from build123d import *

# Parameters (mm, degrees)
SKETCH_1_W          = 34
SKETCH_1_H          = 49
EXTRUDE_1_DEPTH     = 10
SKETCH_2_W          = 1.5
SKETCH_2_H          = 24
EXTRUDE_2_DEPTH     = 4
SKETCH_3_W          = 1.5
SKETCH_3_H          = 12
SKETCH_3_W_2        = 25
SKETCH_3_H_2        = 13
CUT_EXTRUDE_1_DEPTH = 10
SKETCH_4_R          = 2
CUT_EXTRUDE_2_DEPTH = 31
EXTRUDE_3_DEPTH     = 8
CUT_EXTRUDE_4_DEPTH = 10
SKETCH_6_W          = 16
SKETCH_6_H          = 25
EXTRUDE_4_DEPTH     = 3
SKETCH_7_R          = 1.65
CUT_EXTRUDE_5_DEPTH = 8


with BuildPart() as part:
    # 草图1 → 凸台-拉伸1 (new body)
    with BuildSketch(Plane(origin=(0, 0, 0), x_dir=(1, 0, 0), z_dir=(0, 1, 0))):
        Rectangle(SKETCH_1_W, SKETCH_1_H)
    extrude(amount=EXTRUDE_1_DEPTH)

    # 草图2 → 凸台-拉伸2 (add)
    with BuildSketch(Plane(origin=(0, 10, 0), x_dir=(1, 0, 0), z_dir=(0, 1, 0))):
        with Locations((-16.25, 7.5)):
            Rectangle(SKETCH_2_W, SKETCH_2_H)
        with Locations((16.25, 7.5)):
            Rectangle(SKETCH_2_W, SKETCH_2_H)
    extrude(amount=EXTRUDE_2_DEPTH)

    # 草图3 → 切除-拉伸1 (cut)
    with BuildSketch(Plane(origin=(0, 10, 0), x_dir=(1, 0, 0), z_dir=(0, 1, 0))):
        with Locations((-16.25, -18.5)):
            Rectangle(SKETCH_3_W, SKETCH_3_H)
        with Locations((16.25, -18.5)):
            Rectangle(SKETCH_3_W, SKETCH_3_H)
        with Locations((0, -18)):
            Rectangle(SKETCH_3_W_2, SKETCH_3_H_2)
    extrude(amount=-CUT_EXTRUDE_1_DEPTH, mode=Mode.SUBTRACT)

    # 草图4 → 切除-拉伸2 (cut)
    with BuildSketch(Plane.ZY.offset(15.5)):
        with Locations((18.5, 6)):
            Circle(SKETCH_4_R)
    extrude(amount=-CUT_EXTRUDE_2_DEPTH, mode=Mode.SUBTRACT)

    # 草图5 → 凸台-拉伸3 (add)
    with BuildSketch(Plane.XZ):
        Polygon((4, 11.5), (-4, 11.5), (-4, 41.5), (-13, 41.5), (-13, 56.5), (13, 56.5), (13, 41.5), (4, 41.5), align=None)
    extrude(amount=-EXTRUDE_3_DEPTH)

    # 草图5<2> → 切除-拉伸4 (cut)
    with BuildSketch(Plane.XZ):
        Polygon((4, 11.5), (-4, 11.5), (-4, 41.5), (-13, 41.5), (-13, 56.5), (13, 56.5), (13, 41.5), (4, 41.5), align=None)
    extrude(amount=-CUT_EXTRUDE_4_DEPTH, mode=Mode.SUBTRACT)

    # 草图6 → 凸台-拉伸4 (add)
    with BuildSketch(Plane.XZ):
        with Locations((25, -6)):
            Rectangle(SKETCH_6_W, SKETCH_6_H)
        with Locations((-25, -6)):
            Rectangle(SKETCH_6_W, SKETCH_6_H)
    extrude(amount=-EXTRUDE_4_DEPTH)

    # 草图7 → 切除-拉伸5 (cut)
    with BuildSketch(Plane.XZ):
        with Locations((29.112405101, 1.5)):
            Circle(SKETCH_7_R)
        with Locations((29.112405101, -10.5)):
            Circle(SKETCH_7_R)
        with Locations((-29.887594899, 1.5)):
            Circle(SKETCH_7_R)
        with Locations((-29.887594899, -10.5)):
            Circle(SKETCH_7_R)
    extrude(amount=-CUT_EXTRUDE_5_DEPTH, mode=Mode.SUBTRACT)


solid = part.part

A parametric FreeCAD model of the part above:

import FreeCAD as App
import Part
import Sketcher

V = App.Vector

doc = App.newDocument("Part")
params = doc.addObject("Spreadsheet::Sheet", "Params")
for row, (alias, value) in enumerate([
    ("sketch1_width", "34 mm"),
    ("sketch1_height", "49 mm"),
    ("pad1_length", "10 mm"),
    ("sketch2_height", "24 mm"),
    ("sketch2_width", "1.5 mm"),
    ("pad2_length", "4 mm"),
    ("sketch3_width", "25 mm"),
    ("sketch3_height", "12 mm"),
    ("sketch3_height2", "13 mm"),
    ("sketch3_width2", "1.5 mm"),
    ("pocket1_length", "10 mm"),
    ("sketch4_diameter", "4 mm"),
    ("pocket2_length", "31 mm"),
    ("sketch5_width", "8 mm"),
    ("sketch5_width2", "9 mm"),
    ("sketch5_height", "30 mm"),
    ("sketch5_height2", "15 mm"),
    ("pad3_length", "8 mm"),
    ("sketch6_width", "8 mm"),
    ("sketch6_width2", "9 mm"),
    ("sketch6_height", "30 mm"),
    ("sketch6_height2", "15 mm"),
    ("pocket3_length", "10 mm"),
    ("sketch7_width", "16 mm"),
    ("sketch7_height", "25 mm"),
    ("pad4_length", "3 mm"),
    ("sketch8_diameter", "3.3 mm"),
    ("pocket4_length", "8 mm"),
], start=1):
    params.set(f"A{row}", alias)
    params.set(f"B{row}", "=" + value)
    params.setAlias(f"B{row}", alias)

body = doc.addObject("PartDesign::Body", "Body")

sketch1 = doc.addObject("Sketcher::SketchObject", "Sketch")
body.addObject(sketch1)
sketch1.AttachmentSupport = (doc.XZ_Plane, [""])
sketch1.MapMode = "FlatFace"
sketch1.addGeometry(Part.LineSegment(V(-17, -24, 0), V(-17, 24, 0)), False)
sketch1.addGeometry(Part.LineSegment(V(-17, 24, 0), V(17, 24, 0)), False)
sketch1.addGeometry(Part.LineSegment(V(17, 24, 0), V(17, -24, 0)), False)
sketch1.addGeometry(Part.LineSegment(V(17, -24, 0), V(-17, -24, 0)), False)
sketch1.addConstraint(Sketcher.Constraint("Coincident", 0, 2, 1, 1))
sketch1.addConstraint(Sketcher.Constraint("Coincident", 1, 2, 2, 1))
sketch1.addConstraint(Sketcher.Constraint("Coincident", 2, 2, 3, 1))
sketch1.addConstraint(Sketcher.Constraint("Coincident", 3, 2, 0, 1))
sketch1.addConstraint(Sketcher.Constraint("Vertical", 0))
sketch1.addConstraint(Sketcher.Constraint("Horizontal", 1))
sketch1.addConstraint(Sketcher.Constraint("Vertical", 2))
sketch1.addConstraint(Sketcher.Constraint("Horizontal", 3))
sketch1.addConstraint(Sketcher.Constraint("Symmetric", 0, 2, 2, 2, -1, 1))
sketch1.addConstraint(Sketcher.Constraint("DistanceX", 1, 1, 1, 2, 34.0))
sketch1.addConstraint(Sketcher.Constraint("DistanceY", 0, 1, 0, 2, 49.0))
sketch1.setExpression("Constraints[9]", "Params.sketch1_width")
sketch1.setExpression("Constraints[10]", "Params.sketch1_height")
pad1 = doc.addObject("PartDesign::Pad", "Pad")
body.addObject(pad1)
pad1.Profile = sketch1
pad1.setExpression("Length", "Params.pad1_length")
pad1.Reversed = True

sketch2 = doc.addObject("Sketcher::SketchObject", "Sketch001")
body.addObject(sketch2)
sketch2.AttachmentSupport = (doc.XZ_Plane, [""])
sketch2.MapMode = "FlatFace"
sketch2.AttachmentOffset = App.Placement(V(0, 0, -10), App.Rotation())
sketch2.addGeometry(Part.LineSegment(V(-17, -19.5, 0), V(-17, 4.5, 0)), False)
sketch2.addGeometry(Part.LineSegment(V(-17, 4.5, 0), V(-15.5, 4.5, 0)), False)
sketch2.addGeometry(Part.LineSegment(V(-15.5, 4.5, 0), V(-15.5, -19.5, 0)), False)
sketch2.addGeometry(Part.LineSegment(V(-15.5, -19.5, 0), V(-17, -19.5, 0)), False)
sketch2.addGeometry(Part.LineSegment(V(15.5, -19.5, 0), V(15.5, 4.5, 0)), False)
sketch2.addGeometry(Part.LineSegment(V(15.5, 4.5, 0), V(17, 4.5, 0)), False)
sketch2.addGeometry(Part.LineSegment(V(17, 4.5, 0), V(17, -19.5, 0)), False)
sketch2.addGeometry(Part.LineSegment(V(17, -19.5, 0), V(15.5, -19.5, 0)), False)
sketch2.addConstraint(Sketcher.Constraint("Coincident", 0, 2, 1, 1))
sketch2.addConstraint(Sketcher.Constraint("Coincident", 1, 2, 2, 1))
sketch2.addConstraint(Sketcher.Constraint("Coincident", 2, 2, 3, 1))
sketch2.addConstraint(Sketcher.Constraint("Coincident", 3, 2, 0, 1))
sketch2.addConstraint(Sketcher.Constraint("Coincident", 4, 2, 5, 1))
sketch2.addConstraint(Sketcher.Constraint("Coincident", 5, 2, 6, 1))
sketch2.addConstraint(Sketcher.Constraint("Coincident", 6, 2, 7, 1))
sketch2.addConstraint(Sketcher.Constraint("Coincident", 7, 2, 4, 1))
sketch2.addConstraint(Sketcher.Constraint("Vertical", 0))
sketch2.addConstraint(Sketcher.Constraint("Horizontal", 1))
sketch2.addConstraint(Sketcher.Constraint("Vertical", 2))
sketch2.addConstraint(Sketcher.Constraint("Horizontal", 3))
sketch2.addConstraint(Sketcher.Constraint("Vertical", 4))
sketch2.addConstraint(Sketcher.Constraint("Horizontal", 5))
sketch2.addConstraint(Sketcher.Constraint("Vertical", 6))
sketch2.addConstraint(Sketcher.Constraint("Horizontal", 7))
sketch2.addConstraint(Sketcher.Constraint("Symmetric", 1, 2, 4, 2, -2))
sketch2.addConstraint(Sketcher.Constraint("Symmetric", 3, 2, 6, 2, -2))
sketch2.addConstraint(Sketcher.Constraint("DistanceY", 0, 1, 0, 2, 24.0))
sketch2.addConstraint(Sketcher.Constraint("DistanceX", 1, 1, 1, 2, 1.5))
sketch2.addConstraint(Sketcher.Constraint("DistanceX", 0, 2, -1, 1, 17.0))
sketch2.addConstraint(Sketcher.Constraint("DistanceY", -1, 1, 0, 2, 4.5))
sketch2.setExpression("Constraints[18]", "Params.sketch2_height")
sketch2.setExpression("Constraints[19]", "Params.sketch2_width")
pad2 = doc.addObject("PartDesign::Pad", "Pad001")
body.addObject(pad2)
pad2.Profile = sketch2
pad2.setExpression("Length", "Params.pad2_length")
pad2.Reversed = True

sketch3 = doc.addObject("Sketcher::SketchObject", "Sketch002")
body.addObject(sketch3)
sketch3.AttachmentSupport = (doc.XZ_Plane, [""])
sketch3.MapMode = "FlatFace"
sketch3.AttachmentOffset = App.Placement(V(0, 0, -10), App.Rotation())
sketch3.addGeometry(Part.LineSegment(V(-17, 12.5, 0), V(-17, 24.5, 0)), False)
sketch3.addGeometry(Part.LineSegment(V(-17, 24.5, 0), V(-15.5, 24.5, 0)), False)
sketch3.addGeometry(Part.LineSegment(V(-15.5, 24.5, 0), V(-15.5, 12.5, 0)), False)
sketch3.addGeometry(Part.LineSegment(V(-15.5, 12.5, 0), V(-17, 12.5, 0)), False)
sketch3.addGeometry(Part.LineSegment(V(15.5, 12.5, 0), V(15.5, 24.5, 0)), False)
sketch3.addGeometry(Part.LineSegment(V(15.5, 24.5, 0), V(17, 24.5, 0)), False)
sketch3.addGeometry(Part.LineSegment(V(17, 24.5, 0), V(17, 12.5, 0)), False)
sketch3.addGeometry(Part.LineSegment(V(17, 12.5, 0), V(15.5, 12.5, 0)), False)
sketch3.addGeometry(Part.LineSegment(V(-12.5, 11.5, 0), V(-12.5, 24.5, 0)), False)
sketch3.addGeometry(Part.LineSegment(V(-12.5, 24.5, 0), V(12.5, 24.5, 0)), False)
sketch3.addGeometry(Part.LineSegment(V(12.5, 24.5, 0), V(12.5, 11.5, 0)), False)
sketch3.addGeometry(Part.LineSegment(V(12.5, 11.5, 0), V(-12.5, 11.5, 0)), False)
sketch3.addConstraint(Sketcher.Constraint("Coincident", 0, 2, 1, 1))
sketch3.addConstraint(Sketcher.Constraint("Coincident", 1, 2, 2, 1))
sketch3.addConstraint(Sketcher.Constraint("Coincident", 2, 2, 3, 1))
sketch3.addConstraint(Sketcher.Constraint("Coincident", 3, 2, 0, 1))
sketch3.addConstraint(Sketcher.Constraint("Coincident", 4, 2, 5, 1))
sketch3.addConstraint(Sketcher.Constraint("Coincident", 5, 2, 6, 1))
sketch3.addConstraint(Sketcher.Constraint("Coincident", 6, 2, 7, 1))
sketch3.addConstraint(Sketcher.Constraint("Coincident", 7, 2, 4, 1))
sketch3.addConstraint(Sketcher.Constraint("Coincident", 8, 2, 9, 1))
sketch3.addConstraint(Sketcher.Constraint("Coincident", 9, 2, 10, 1))
sketch3.addConstraint(Sketcher.Constraint("Coincident", 10, 2, 11, 1))
sketch3.addConstraint(Sketcher.Constraint("Coincident", 11, 2, 8, 1))
sketch3.addConstraint(Sketcher.Constraint("Vertical", 0))
sketch3.addConstraint(Sketcher.Constraint("Horizontal", 1))
sketch3.addConstraint(Sketcher.Constraint("Vertical", 2))
sketch3.addConstraint(Sketcher.Constraint("Horizontal", 3))
sketch3.addConstraint(Sketcher.Constraint("Vertical", 4))
sketch3.addConstraint(Sketcher.Constraint("Horizontal", 5))
sketch3.addConstraint(Sketcher.Constraint("Vertical", 6))
sketch3.addConstraint(Sketcher.Constraint("Horizontal", 7))
sketch3.addConstraint(Sketcher.Constraint("Vertical", 8))
sketch3.addConstraint(Sketcher.Constraint("Horizontal", 9))
sketch3.addConstraint(Sketcher.Constraint("Vertical", 10))
sketch3.addConstraint(Sketcher.Constraint("Horizontal", 11))
sketch3.addConstraint(Sketcher.Constraint("Symmetric", 1, 2, 4, 2, -2))
sketch3.addConstraint(Sketcher.Constraint("Symmetric", 3, 2, 6, 2, -2))
sketch3.addConstraint(Sketcher.Constraint("Horizontal", 5, 2, 8, 2))
sketch3.addConstraint(Sketcher.Constraint("DistanceX", 9, 1, 9, 2, 25.0))
sketch3.addConstraint(Sketcher.Constraint("DistanceY", 0, 1, 0, 2, 12.0))
sketch3.addConstraint(Sketcher.Constraint("DistanceY", 8, 1, 8, 2, 13.0))
sketch3.addConstraint(Sketcher.Constraint("DistanceX", 1, 1, 1, 2, 1.5))
sketch3.addConstraint(Sketcher.Constraint("DistanceX", 0, 2, -1, 1, 17.0))
sketch3.addConstraint(Sketcher.Constraint("DistanceX", 1, 2, 8, 2, 3.0))
sketch3.addConstraint(Sketcher.Constraint("DistanceY", -1, 1, 0, 2, 24.5))
sketch3.setExpression("Constraints[27]", "Params.sketch3_width")
sketch3.setExpression("Constraints[28]", "Params.sketch3_height")
sketch3.setExpression("Constraints[29]", "Params.sketch3_height2")
sketch3.setExpression("Constraints[30]", "Params.sketch3_width2")
pocket1 = doc.addObject("PartDesign::Pocket", "Pocket")
body.addObject(pocket1)
pocket1.Profile = sketch3
pocket1.setExpression("Length", "Params.pocket1_length")
pocket1.Reversed = True

sketch4 = doc.addObject("Sketcher::SketchObject", "Sketch003")
body.addObject(sketch4)
sketch4.AttachmentSupport = (doc.YZ_Plane, [""])
sketch4.MapMode = "FlatFace"
sketch4.AttachmentOffset = App.Placement(V(0, 0, -15.5), App.Rotation())
sketch4.addGeometry(Part.Circle(V(6, 18.5, 0), V(0, 0, 1), 2), False)
sketch4.addConstraint(Sketcher.Constraint("Diameter", 0, 4.0))
sketch4.addConstraint(Sketcher.Constraint("DistanceX", -1, 1, 0, 3, 6.0))
sketch4.addConstraint(Sketcher.Constraint("DistanceY", -1, 1, 0, 3, 18.5))
sketch4.setExpression("Constraints[0]", "Params.sketch4_diameter")
pocket2 = doc.addObject("PartDesign::Pocket", "Pocket001")
body.addObject(pocket2)
pocket2.Profile = sketch4
pocket2.setExpression("Length", "Params.pocket2_length")
pocket2.Reversed = True

sketch5 = doc.addObject("Sketcher::SketchObject", "Sketch004")
body.addObject(sketch5)
sketch5.AttachmentSupport = (doc.XZ_Plane, [""])
sketch5.MapMode = "FlatFace"
sketch5.addGeometry(Part.LineSegment(V(-4, 12, 0), V(4, 12, 0)), False)
sketch5.addGeometry(Part.LineSegment(V(4, 12, 0), V(4, 42, 0)), False)
sketch5.addGeometry(Part.LineSegment(V(4, 42, 0), V(13, 42, 0)), False)
sketch5.addGeometry(Part.LineSegment(V(13, 42, 0), V(13, 56, 0)), False)
sketch5.addGeometry(Part.LineSegment(V(13, 56, 0), V(-13, 56, 0)), False)
sketch5.addGeometry(Part.LineSegment(V(-13, 56, 0), V(-13, 42, 0)), False)
sketch5.addGeometry(Part.LineSegment(V(-13, 42, 0), V(-4, 42, 0)), False)
sketch5.addGeometry(Part.LineSegment(V(-4, 42, 0), V(-4, 12, 0)), False)
sketch5.addConstraint(Sketcher.Constraint("Coincident", 0, 2, 1, 1))
sketch5.addConstraint(Sketcher.Constraint("Coincident", 1, 2, 2, 1))
sketch5.addConstraint(Sketcher.Constraint("Coincident", 2, 2, 3, 1))
sketch5.addConstraint(Sketcher.Constraint("Coincident", 3, 2, 4, 1))
sketch5.addConstraint(Sketcher.Constraint("Coincident", 4, 2, 5, 1))
sketch5.addConstraint(Sketcher.Constraint("Coincident", 5, 2, 6, 1))
sketch5.addConstraint(Sketcher.Constraint("Coincident", 6, 2, 7, 1))
sketch5.addConstraint(Sketcher.Constraint("Coincident", 7, 2, 0, 1))
sketch5.addConstraint(Sketcher.Constraint("Horizontal", 0))
sketch5.addConstraint(Sketcher.Constraint("Vertical", 1))
sketch5.addConstraint(Sketcher.Constraint("Horizontal", 2))
sketch5.addConstraint(Sketcher.Constraint("Vertical", 3))
sketch5.addConstraint(Sketcher.Constraint("Horizontal", 4))
sketch5.addConstraint(Sketcher.Constraint("Vertical", 5))
sketch5.addConstraint(Sketcher.Constraint("Horizontal", 6))
sketch5.addConstraint(Sketcher.Constraint("Vertical", 7))
sketch5.addConstraint(Sketcher.Constraint("Symmetric", 2, 2, 5, 2, -2))
sketch5.addConstraint(Sketcher.Constraint("Equal", 2, 6))
sketch5.addConstraint(Sketcher.Constraint("DistanceX", 0, 1, 0, 2, 8.0))
sketch5.addConstraint(Sketcher.Constraint("DistanceX", 2, 1, 2, 2, 9.0))
sketch5.addConstraint(Sketcher.Constraint("DistanceY", 1, 1, 1, 2, 30.0))
sketch5.addConstraint(Sketcher.Constraint("DistanceY", 3, 1, 3, 2, 15.0))
sketch5.addConstraint(Sketcher.Constraint("DistanceY", -1, 1, 0, 2, 11.5))
sketch5.setExpression("Constraints[18]", "Params.sketch5_width")
sketch5.setExpression("Constraints[19]", "Params.sketch5_width2")
sketch5.setExpression("Constraints[20]", "Params.sketch5_height")
sketch5.setExpression("Constraints[21]", "Params.sketch5_height2")
pad3 = doc.addObject("PartDesign::Pad", "Pad002")
body.addObject(pad3)
pad3.Profile = sketch5
pad3.setExpression("Length", "Params.pad3_length")
pad3.Reversed = True

sketch6 = doc.addObject("Sketcher::SketchObject", "Sketch005")
body.addObject(sketch6)
sketch6.AttachmentSupport = (doc.XZ_Plane, [""])
sketch6.MapMode = "FlatFace"
sketch6.addGeometry(Part.LineSegment(V(-4, 12, 0), V(4, 12, 0)), False)
sketch6.addGeometry(Part.LineSegment(V(4, 12, 0), V(4, 42, 0)), False)
sketch6.addGeometry(Part.LineSegment(V(4, 42, 0), V(13, 42, 0)), False)
sketch6.addGeometry(Part.LineSegment(V(13, 42, 0), V(13, 56, 0)), False)
sketch6.addGeometry(Part.LineSegment(V(13, 56, 0), V(-13, 56, 0)), False)
sketch6.addGeometry(Part.LineSegment(V(-13, 56, 0), V(-13, 42, 0)), False)
sketch6.addGeometry(Part.LineSegment(V(-13, 42, 0), V(-4, 42, 0)), False)
sketch6.addGeometry(Part.LineSegment(V(-4, 42, 0), V(-4, 12, 0)), False)
sketch6.addConstraint(Sketcher.Constraint("Coincident", 0, 2, 1, 1))
sketch6.addConstraint(Sketcher.Constraint("Coincident", 1, 2, 2, 1))
sketch6.addConstraint(Sketcher.Constraint("Coincident", 2, 2, 3, 1))
sketch6.addConstraint(Sketcher.Constraint("Coincident", 3, 2, 4, 1))
sketch6.addConstraint(Sketcher.Constraint("Coincident", 4, 2, 5, 1))
sketch6.addConstraint(Sketcher.Constraint("Coincident", 5, 2, 6, 1))
sketch6.addConstraint(Sketcher.Constraint("Coincident", 6, 2, 7, 1))
sketch6.addConstraint(Sketcher.Constraint("Coincident", 7, 2, 0, 1))
sketch6.addConstraint(Sketcher.Constraint("Horizontal", 0))
sketch6.addConstraint(Sketcher.Constraint("Vertical", 1))
sketch6.addConstraint(Sketcher.Constraint("Horizontal", 2))
sketch6.addConstraint(Sketcher.Constraint("Vertical", 3))
sketch6.addConstraint(Sketcher.Constraint("Horizontal", 4))
sketch6.addConstraint(Sketcher.Constraint("Vertical", 5))
sketch6.addConstraint(Sketcher.Constraint("Horizontal", 6))
sketch6.addConstraint(Sketcher.Constraint("Vertical", 7))
sketch6.addConstraint(Sketcher.Constraint("Symmetric", 2, 2, 5, 2, -2))
sketch6.addConstraint(Sketcher.Constraint("Equal", 2, 6))
sketch6.addConstraint(Sketcher.Constraint("DistanceX", 0, 1, 0, 2, 8.0))
sketch6.addConstraint(Sketcher.Constraint("DistanceX", 2, 1, 2, 2, 9.0))
sketch6.addConstraint(Sketcher.Constraint("DistanceY", 1, 1, 1, 2, 30.0))
sketch6.addConstraint(Sketcher.Constraint("DistanceY", 3, 1, 3, 2, 15.0))
sketch6.addConstraint(Sketcher.Constraint("DistanceY", -1, 1, 0, 2, 11.5))
sketch6.setExpression("Constraints[18]", "Params.sketch6_width")
sketch6.setExpression("Constraints[19]", "Params.sketch6_width2")
sketch6.setExpression("Constraints[20]", "Params.sketch6_height")
sketch6.setExpression("Constraints[21]", "Params.sketch6_height2")
pocket3 = doc.addObject("PartDesign::Pocket", "Pocket002")
body.addObject(pocket3)
pocket3.Profile = sketch6
pocket3.setExpression("Length", "Params.pocket3_length")

sketch7 = doc.addObject("Sketcher::SketchObject", "Sketch006")
body.addObject(sketch7)
sketch7.AttachmentSupport = (doc.XZ_Plane, [""])
sketch7.MapMode = "FlatFace"
sketch7.addGeometry(Part.LineSegment(V(17, 6, 0), V(17, -18, 0)), False)
sketch7.addGeometry(Part.LineSegment(V(17, -18, 0), V(33, -18, 0)), False)
sketch7.addGeometry(Part.LineSegment(V(33, -18, 0), V(33, 6, 0)), False)
sketch7.addGeometry(Part.LineSegment(V(33, 6, 0), V(17, 6, 0)), False)
sketch7.addGeometry(Part.LineSegment(V(-33, 6, 0), V(-33, -18, 0)), False)
sketch7.addGeometry(Part.LineSegment(V(-33, -18, 0), V(-17, -18, 0)), False)
sketch7.addGeometry(Part.LineSegment(V(-17, -18, 0), V(-17, 6, 0)), False)
sketch7.addGeometry(Part.LineSegment(V(-17, 6, 0), V(-33, 6, 0)), False)
sketch7.addConstraint(Sketcher.Constraint("Coincident", 0, 2, 1, 1))
sketch7.addConstraint(Sketcher.Constraint("Coincident", 1, 2, 2, 1))
sketch7.addConstraint(Sketcher.Constraint("Coincident", 2, 2, 3, 1))
sketch7.addConstraint(Sketcher.Constraint("Coincident", 3, 2, 0, 1))
sketch7.addConstraint(Sketcher.Constraint("Coincident", 4, 2, 5, 1))
sketch7.addConstraint(Sketcher.Constraint("Coincident", 5, 2, 6, 1))
sketch7.addConstraint(Sketcher.Constraint("Coincident", 6, 2, 7, 1))
sketch7.addConstraint(Sketcher.Constraint("Coincident", 7, 2, 4, 1))
sketch7.addConstraint(Sketcher.Constraint("Vertical", 0))
sketch7.addConstraint(Sketcher.Constraint("Horizontal", 1))
sketch7.addConstraint(Sketcher.Constraint("Vertical", 2))
sketch7.addConstraint(Sketcher.Constraint("Horizontal", 3))
sketch7.addConstraint(Sketcher.Constraint("Vertical", 4))
sketch7.addConstraint(Sketcher.Constraint("Horizontal", 5))
sketch7.addConstraint(Sketcher.Constraint("Vertical", 6))
sketch7.addConstraint(Sketcher.Constraint("Horizontal", 7))
sketch7.addConstraint(Sketcher.Constraint("Symmetric", 1, 2, 4, 2, -2))
sketch7.addConstraint(Sketcher.Constraint("Symmetric", 3, 2, 6, 2, -2))
sketch7.addConstraint(Sketcher.Constraint("DistanceX", 1, 1, 1, 2, 16.0))
sketch7.addConstraint(Sketcher.Constraint("DistanceY", 0, 2, 0, 1, 25.0))
sketch7.addConstraint(Sketcher.Constraint("DistanceX", -1, 1, 0, 2, 17.0))
sketch7.addConstraint(Sketcher.Constraint("DistanceY", 0, 2, -1, 1, 18.5))
sketch7.setExpression("Constraints[18]", "Params.sketch7_width")
sketch7.setExpression("Constraints[19]", "Params.sketch7_height")
pad4 = doc.addObject("PartDesign::Pad", "Pad003")
body.addObject(pad4)
pad4.Profile = sketch7
pad4.setExpression("Length", "Params.pad4_length")
pad4.Reversed = True

sketch8 = doc.addObject("Sketcher::SketchObject", "Sketch007")
body.addObject(sketch8)
sketch8.AttachmentSupport = (doc.XZ_Plane, [""])
sketch8.MapMode = "FlatFace"
sketch8.addGeometry(Part.Circle(V(29.1, 1.5, 0), V(0, 0, 1), 1.6), False)
sketch8.addGeometry(Part.Circle(V(29.1, -10.5, 0), V(0, 0, 1), 1.6), False)
sketch8.addGeometry(Part.Circle(V(-29.9, 1.5, 0), V(0, 0, 1), 1.6), False)
sketch8.addGeometry(Part.Circle(V(-29.9, -10.5, 0), V(0, 0, 1), 1.6), False)
sketch8.addConstraint(Sketcher.Constraint("Equal", 0, 1))
sketch8.addConstraint(Sketcher.Constraint("Equal", 1, 2))
sketch8.addConstraint(Sketcher.Constraint("Equal", 2, 3))
sketch8.addConstraint(Sketcher.Constraint("Horizontal", 0, 3, 2, 3))
sketch8.addConstraint(Sketcher.Constraint("Horizontal", 1, 3, 3, 3))
sketch8.addConstraint(Sketcher.Constraint("Vertical", 0, 3, 1, 3))
sketch8.addConstraint(Sketcher.Constraint("Vertical", 2, 3, 3, 3))
sketch8.addConstraint(Sketcher.Constraint("Diameter", 0, 3.3))
sketch8.addConstraint(Sketcher.Constraint("DistanceY", 1, 3, 0, 3, 12.0))
sketch8.addConstraint(Sketcher.Constraint("DistanceX", 2, 3, 0, 3, 59.0))
sketch8.addConstraint(Sketcher.Constraint("DistanceY", -1, 1, 0, 3, 1.5))
sketch8.addConstraint(Sketcher.Constraint("DistanceX", -1, 1, 0, 3, 29.112405))
sketch8.setExpression("Constraints[7]", "Params.sketch8_diameter")
pocket4 = doc.addObject("PartDesign::Pocket", "Pocket003")
body.addObject(pocket4)
pocket4.Profile = sketch8
pocket4.setExpression("Length", "Params.pocket4_length")

doc.recompute()
